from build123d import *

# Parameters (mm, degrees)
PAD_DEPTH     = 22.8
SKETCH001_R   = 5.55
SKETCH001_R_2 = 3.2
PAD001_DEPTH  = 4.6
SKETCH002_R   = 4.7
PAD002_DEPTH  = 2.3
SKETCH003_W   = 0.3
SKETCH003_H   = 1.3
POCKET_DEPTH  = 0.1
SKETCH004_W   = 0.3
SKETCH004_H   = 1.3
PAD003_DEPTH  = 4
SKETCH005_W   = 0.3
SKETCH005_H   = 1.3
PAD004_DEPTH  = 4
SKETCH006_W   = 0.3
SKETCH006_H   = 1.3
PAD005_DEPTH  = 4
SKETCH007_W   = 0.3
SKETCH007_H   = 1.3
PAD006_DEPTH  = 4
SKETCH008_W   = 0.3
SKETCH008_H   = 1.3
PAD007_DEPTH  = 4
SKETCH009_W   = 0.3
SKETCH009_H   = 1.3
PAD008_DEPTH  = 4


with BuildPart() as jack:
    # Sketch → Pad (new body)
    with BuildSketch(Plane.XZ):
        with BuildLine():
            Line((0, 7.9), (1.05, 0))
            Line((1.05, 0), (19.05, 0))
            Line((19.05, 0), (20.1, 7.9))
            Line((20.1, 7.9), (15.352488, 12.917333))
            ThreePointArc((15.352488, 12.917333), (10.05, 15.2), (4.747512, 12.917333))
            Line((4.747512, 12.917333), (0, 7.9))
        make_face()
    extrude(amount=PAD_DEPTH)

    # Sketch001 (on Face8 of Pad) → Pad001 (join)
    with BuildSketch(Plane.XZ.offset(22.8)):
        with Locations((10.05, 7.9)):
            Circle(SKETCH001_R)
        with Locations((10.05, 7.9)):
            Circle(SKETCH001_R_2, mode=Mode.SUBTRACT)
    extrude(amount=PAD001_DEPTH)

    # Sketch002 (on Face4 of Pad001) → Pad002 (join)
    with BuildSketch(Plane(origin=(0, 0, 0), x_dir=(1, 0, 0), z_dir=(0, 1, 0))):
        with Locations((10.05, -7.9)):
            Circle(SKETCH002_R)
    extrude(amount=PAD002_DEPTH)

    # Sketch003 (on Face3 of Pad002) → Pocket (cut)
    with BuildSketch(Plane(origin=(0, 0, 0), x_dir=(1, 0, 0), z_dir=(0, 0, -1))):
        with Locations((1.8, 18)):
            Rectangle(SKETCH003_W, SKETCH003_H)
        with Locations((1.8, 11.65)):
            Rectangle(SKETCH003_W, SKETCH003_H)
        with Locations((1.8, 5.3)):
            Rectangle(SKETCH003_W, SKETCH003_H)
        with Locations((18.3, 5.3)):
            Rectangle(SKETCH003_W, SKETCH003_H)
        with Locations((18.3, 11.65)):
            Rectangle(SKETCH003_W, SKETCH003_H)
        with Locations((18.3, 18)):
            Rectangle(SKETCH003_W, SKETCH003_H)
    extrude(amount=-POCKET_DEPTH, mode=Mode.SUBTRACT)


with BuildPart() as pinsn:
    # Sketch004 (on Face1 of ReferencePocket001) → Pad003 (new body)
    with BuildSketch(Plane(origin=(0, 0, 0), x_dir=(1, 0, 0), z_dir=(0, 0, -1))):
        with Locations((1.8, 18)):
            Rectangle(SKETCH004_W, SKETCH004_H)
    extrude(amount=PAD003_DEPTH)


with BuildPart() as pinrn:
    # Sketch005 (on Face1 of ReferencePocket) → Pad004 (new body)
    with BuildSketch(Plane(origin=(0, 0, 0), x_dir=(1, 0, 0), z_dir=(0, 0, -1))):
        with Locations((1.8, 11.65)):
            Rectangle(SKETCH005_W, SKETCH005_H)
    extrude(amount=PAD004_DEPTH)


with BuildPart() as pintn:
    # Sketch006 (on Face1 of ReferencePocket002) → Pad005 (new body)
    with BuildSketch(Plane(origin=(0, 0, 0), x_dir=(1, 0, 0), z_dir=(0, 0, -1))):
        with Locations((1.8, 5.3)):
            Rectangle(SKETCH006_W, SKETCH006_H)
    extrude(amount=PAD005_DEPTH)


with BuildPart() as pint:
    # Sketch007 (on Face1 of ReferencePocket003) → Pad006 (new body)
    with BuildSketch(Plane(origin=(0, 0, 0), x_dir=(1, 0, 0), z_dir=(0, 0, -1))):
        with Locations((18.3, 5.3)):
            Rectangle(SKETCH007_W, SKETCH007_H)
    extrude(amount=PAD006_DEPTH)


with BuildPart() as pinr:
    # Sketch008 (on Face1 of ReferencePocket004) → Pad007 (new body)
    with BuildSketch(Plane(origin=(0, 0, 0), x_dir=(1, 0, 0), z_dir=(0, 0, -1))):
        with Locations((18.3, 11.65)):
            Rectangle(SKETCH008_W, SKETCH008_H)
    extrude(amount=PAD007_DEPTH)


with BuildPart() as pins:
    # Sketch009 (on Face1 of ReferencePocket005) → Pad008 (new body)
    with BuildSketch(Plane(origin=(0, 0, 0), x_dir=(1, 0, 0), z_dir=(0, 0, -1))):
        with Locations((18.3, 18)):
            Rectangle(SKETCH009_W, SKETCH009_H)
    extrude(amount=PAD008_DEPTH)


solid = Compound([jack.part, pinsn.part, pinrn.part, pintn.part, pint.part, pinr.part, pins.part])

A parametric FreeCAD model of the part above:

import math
import FreeCAD as App
import Part
import Sketcher

V = App.Vector
Q = App.Units.Quantity

doc = App.newDocument("Part")
body = doc.addObject("PartDesign::Body", "Body")

sketch1 = body.newObject("Sketcher::SketchObject", "Sketch")
sketch1.AttachmentSupport = (doc.getObject("XZ_Plane"), [""])
sketch1.MapMode = "FlatFace"
sketch1.addGeometry(Part.LineSegment(V(0, 8, 0), V(1, 0, 0)), False)
sketch1.addGeometry(Part.LineSegment(V(1, 0, 0), V(19, 0, 0)), False)
sketch1.addGeometry(Part.LineSegment(V(19, 0, 0), V(20, 8, 0)), False)
sketch1.addGeometry(Part.LineSegment(V(20, 8, 0), V(15, 13, 0)), False)
sketch1.addGeometry(Part.ArcOfCircle(Part.Circle(V(10, 8, 0), V(0, 0, 1), 7), math.radians(43), math.radians(137)), False)
sketch1.addGeometry(Part.LineSegment(V(5, 13, 0), V(0, 8, 0)), False)
sketch1.addConstraint(Sketcher.Constraint("Coincident", 0, 2, 1, 1))
sketch1.addConstraint(Sketcher.Constraint("Coincident", 1, 2, 2, 1))
sketch1.addConstraint(Sketcher.Constraint("Coincident", 2, 2, 3, 1))
sketch1.addConstraint(Sketcher.Constraint("Tangent", 3, 2, 4, 1))
sketch1.addConstraint(Sketcher.Constraint("Tangent", 4, 2, 5, 1))
sketch1.addConstraint(Sketcher.Constraint("Coincident", 5, 2, 0, 1))
sketch1.addConstraint(Sketcher.Constraint("Horizontal", 1))
sketch1.addConstraint(Sketcher.Constraint("PointOnObject", 0, 2, -1))
sketch1.addConstraint(Sketcher.Constraint("PointOnObject", 5, 2, -2))
sketch1.addConstraint(Sketcher.Constraint("Horizontal", 3, 2, 4, 2))
sketch1.addConstraint(Sketcher.Constraint("Horizontal", 2, 2, 5, 2))
sketch1.addConstraint(Sketcher.Constraint("Equal", 0, 2))
sketch1.addConstraint(Sketcher.Constraint("DistanceX", 1, 1, 1, 2, Q("18 mm")))
sketch1.addConstraint(Sketcher.Constraint("DistanceX", -1, 1, 2, 2, Q("20.1 mm")))
sketch1.addConstraint(Sketcher.Constraint("DistanceY", -1, 1, 2, 2, Q("7.9 mm")))
sketch1.addConstraint(Sketcher.Constraint("Radius", 4, Q("7.300002 mm")))
sketch1.addConstraint(Sketcher.Constraint("DistanceY", -1, 1, 4, 3, Q("7.899998 mm")))
pad1 = body.newObject("PartDesign::Pad", "Pad")
pad1.Profile = sketch1
pad1.Length = 22.8

sketch2 = body.newObject("Sketcher::SketchObject", "Sketch001")
sketch2.AttachmentSupport = (doc.getObject("XZ_Plane"), [""])
sketch2.MapMode = "FlatFace"
sketch2.AttachmentOffset = App.Placement(V(0, 0, 22.8), App.Rotation())
sketch2.addGeometry(Part.Circle(V(10.1, 7.9, 0), V(0, 0, 1), 5.5), False)
sketch2.addGeometry(Part.Circle(V(10.1, 7.9, 0), V(0, 0, 1), 3.2), False)
sketch2.addConstraint(Sketcher.Constraint("Coincident", 1, 3, 0, 3))
sketch2.addConstraint(Sketcher.Constraint("Diameter", 0, Q("11.1 mm")))
sketch2.addConstraint(Sketcher.Constraint("Diameter", 1, Q("6.4 mm")))
sketch2.addConstraint(Sketcher.Constraint("DistanceY", -1, 1, 0, 3, Q("7.9 mm")))
sketch2.addConstraint(Sketcher.Constraint("DistanceX", -1, 1, 0, 3, Q("10.05 mm")))
pad2 = body.newObject("PartDesign::Pad", "Pad001")
pad2.Profile = sketch2
pad2.Length = 4.6

sketch3 = body.newObject("Sketcher::SketchObject", "Sketch002")
sketch3.AttachmentSupport = (doc.getObject("XZ_Plane"), [""])
sketch3.MapMode = "FlatFace"
sketch3.addGeometry(Part.Circle(V(10.1, 7.9, 0), V(0, 0, 1), 4.7), False)
sketch3.addConstraint(Sketcher.Constraint("Diameter", 0, Q("9.4 mm")))
sketch3.addConstraint(Sketcher.Constraint("DistanceY", -1, 1, 0, 3, Q("7.9 mm")))
sketch3.addConstraint(Sketcher.Constraint("DistanceX", -1, 1, 0, 3, Q("10.05 mm")))
pad3 = body.newObject("PartDesign::Pad", "Pad002")
pad3.Profile = sketch3
pad3.Length = 2.3
pad3.Reversed = True

sketch4 = body.newObject("Sketcher::SketchObject", "Sketch003")
sketch4.AttachmentSupport = (doc.getObject("XY_Plane"), [""])
sketch4.MapMode = "FlatFace"
sketch4.addGeometry(Part.LineSegment(V(1.65, -18.65, 0), V(1.65, -17.35, 0)), False)
sketch4.addGeometry(Part.LineSegment(V(1.65, -17.35, 0), V(1.95, -17.35, 0)), False)
sketch4.addGeometry(Part.LineSegment(V(1.95, -17.35, 0), V(1.95, -18.65, 0)), False)
sketch4.addGeometry(Part.LineSegment(V(1.95, -18.65, 0), V(1.65, -18.65, 0)), False)
sketch4.addGeometry(Part.LineSegment(V(1.65, -12.3, 0), V(1.65, -11, 0)), False)
sketch4.addGeometry(Part.LineSegment(V(1.65, -11, 0), V(1.95, -11, 0)), False)
sketch4.addGeometry(Part.LineSegment(V(1.95, -11, 0), V(1.95, -12.3, 0)), False)
sketch4.addGeometry(Part.LineSegment(V(1.95, -12.3, 0), V(1.65, -12.3, 0)), False)
sketch4.addGeometry(Part.LineSegment(V(1.65, -5.95, 0), V(1.65, -4.65, 0)), False)
sketch4.addGeometry(Part.LineSegment(V(1.65, -4.65, 0), V(1.95, -4.65, 0)), False)
sketch4.addGeometry(Part.LineSegment(V(1.95, -4.65, 0), V(1.95, -5.95, 0)), False)
sketch4.addGeometry(Part.LineSegment(V(1.95, -5.95, 0), V(1.65, -5.95, 0)), False)
sketch4.addGeometry(Part.LineSegment(V(18.15, -5.95, 0), V(18.15, -4.65, 0)), False)
sketch4.addGeometry(Part.LineSegment(V(18.15, -4.65, 0), V(18.45, -4.65, 0)), False)
sketch4.addGeometry(Part.LineSegment(V(18.45, -4.65, 0), V(18.45, -5.95, 0)), False)
sketch4.addGeometry(Part.LineSegment(V(18.45, -5.95, 0), V(18.15, -5.95, 0)), False)
sketch4.addGeometry(Part.LineSegment(V(18.15, -12.3, 0), V(18.15, -11, 0)), False)
sketch4.addGeometry(Part.LineSegment(V(18.15, -11, 0), V(18.45, -11, 0)), False)
sketch4.addGeometry(Part.LineSegment(V(18.45, -11, 0), V(18.45, -12.3, 0)), False)
sketch4.addGeometry(Part.LineSegment(V(18.45, -12.3, 0), V(18.15, -12.3, 0)), False)
sketch4.addGeometry(Part.LineSegment(V(18.15, -18.65, 0), V(18.15, -17.35, 0)), False)
sketch4.addGeometry(Part.LineSegment(V(18.15, -17.35, 0), V(18.45, -17.35, 0)), False)
sketch4.addGeometry(Part.LineSegment(V(18.45, -17.35, 0), V(18.45, -18.65, 0)), False)
sketch4.addGeometry(Part.LineSegment(V(18.45, -18.65, 0), V(18.15, -18.65, 0)), False)
sketch4.addConstraint(Sketcher.Constraint("Coincident", 0, 2, 1, 1))
sketch4.addConstraint(Sketcher.Constraint("Coincident", 1, 2, 2, 1))
sketch4.addConstraint(Sketcher.Constraint("Coincident", 2, 2, 3, 1))
sketch4.addConstraint(Sketcher.Constraint("Coincident", 3, 2, 0, 1))
sketch4.addConstraint(Sketcher.Constraint("Coincident", 4, 2, 5, 1))
sketch4.addConstraint(Sketcher.Constraint("Coincident", 5, 2, 6, 1))
sketch4.addConstraint(Sketcher.Constraint("Coincident", 6, 2, 7, 1))
sketch4.addConstraint(Sketcher.Constraint("Coincident", 7, 2, 4, 1))
sketch4.addConstraint(Sketcher.Constraint("Coincident", 8, 2, 9, 1))
sketch4.addConstraint(Sketcher.Constraint("Coincident", 9, 2, 10, 1))
sketch4.addConstraint(Sketcher.Constraint("Coincident", 10, 2, 11, 1))
sketch4.addConstraint(Sketcher.Constraint("Coincident", 11, 2, 8, 1))
sketch4.addConstraint(Sketcher.Constraint("Coincident", 12, 2, 13, 1))
sketch4.addConstraint(Sketcher.Constraint("Coincident", 13, 2, 14, 1))
sketch4.addConstraint(Sketcher.Constraint("Coincident", 14, 2, 15, 1))
sketch4.addConstraint(Sketcher.Constraint("Coincident", 15, 2, 12, 1))
sketch4.addConstraint(Sketcher.Constraint("Coincident", 16, 2, 17, 1))
sketch4.addConstraint(Sketcher.Constraint("Coincident", 17, 2, 18, 1))
sketch4.addConstraint(Sketcher.Constraint("Coincident", 18, 2, 19, 1))
sketch4.addConstraint(Sketcher.Constraint("Coincident", 19, 2, 16, 1))
sketch4.addConstraint(Sketcher.Constraint("Coincident", 20, 2, 21, 1))
sketch4.addConstraint(Sketcher.Constraint("Coincident", 21, 2, 22, 1))
sketch4.addConstraint(Sketcher.Constraint("Coincident", 22, 2, 23, 1))
sketch4.addConstraint(Sketcher.Constraint("Coincident", 23, 2, 20, 1))
sketch4.addConstraint(Sketcher.Constraint("Vertical", 0))
sketch4.addConstraint(Sketcher.Constraint("Horizontal", 1))
sketch4.addConstraint(Sketcher.Constraint("Vertical", 2))
sketch4.addConstraint(Sketcher.Constraint("Horizontal", 3))
sketch4.addConstraint(Sketcher.Constraint("Vertical", 4))
sketch4.addConstraint(Sketcher.Constraint("Horizontal", 5))
sketch4.addConstraint(Sketcher.Constraint("Vertical", 6))
sketch4.addConstraint(Sketcher.Constraint("Horizontal", 7))
sketch4.addConstraint(Sketcher.Constraint("Vertical", 8))
sketch4.addConstraint(Sketcher.Constraint("Horizontal", 9))
sketch4.addConstraint(Sketcher.Constraint("Vertical", 10))
sketch4.addConstraint(Sketcher.Constraint("Horizontal", 11))
sketch4.addConstraint(Sketcher.Constraint("Vertical", 12))
sketch4.addConstraint(Sketcher.Constraint("Horizontal", 13))
sketch4.addConstraint(Sketcher.Constraint("Vertical", 14))
sketch4.addConstraint(Sketcher.Constraint("Horizontal", 15))
sketch4.addConstraint(Sketcher.Constraint("Vertical", 16))
sketch4.addConstraint(Sketcher.Constraint("Horizontal", 17))
sketch4.addConstraint(Sketcher.Constraint("Vertical", 18))
sketch4.addConstraint(Sketcher.Constraint("Horizontal", 19))
sketch4.addConstraint(Sketcher.Constraint("Vertical", 20))
sketch4.addConstraint(Sketcher.Constraint("Horizontal", 21))
sketch4.addConstraint(Sketcher.Constraint("Vertical", 22))
sketch4.addConstraint(Sketcher.Constraint("Horizontal", 23))
sketch4.addConstraint(Sketcher.Constraint("Horizontal", 9, 2, 12, 2))
sketch4.addConstraint(Sketcher.Constraint("Horizontal", 11, 2, 14, 2))
sketch4.addConstraint(Sketcher.Constraint("Horizontal", 5, 2, 16, 2))
sketch4.addConstraint(Sketcher.Constraint("Horizontal", 7, 2, 18, 2))
sketch4.addConstraint(Sketcher.Constraint("Horizontal", 1, 2, 20, 2))
sketch4.addConstraint(Sketcher.Constraint("Horizontal", 3, 2, 22, 2))
sketch4.addConstraint(Sketcher.Constraint("Vertical", 3, 2, 4, 2))
sketch4.addConstraint(Sketcher.Constraint("Vertical", 2, 2, 5, 2))
sketch4.addConstraint(Sketcher.Constraint("Vertical", 7, 2, 8, 2))
sketch4.addConstraint(Sketcher.Constraint("Vertical", 6, 2, 9, 2))
sketch4.addConstraint(Sketcher.Constraint("Vertical", 15, 2, 16, 2))
sketch4.addConstraint(Sketcher.Constraint("Vertical", 14, 2, 17, 2))
sketch4.addConstraint(Sketcher.Constraint("Vertical", 19, 2, 20, 2))
sketch4.addConstraint(Sketcher.Constraint("Vertical", 18, 2, 21, 2))
sketch4.addConstraint(Sketcher.Constraint("Equal", 11, 13))
sketch4.addConstraint(Sketcher.Constraint("Equal", 2, 4))
sketch4.addConstraint(Sketcher.Constraint("Equal", 6, 8))
sketch4.addConstraint(Sketcher.Constraint("DistanceX", 1, 1, 1, 2, Q("0.3 mm")))
sketch4.addConstraint(Sketcher.Constraint("DistanceY", 0, 1, 0, 2, Q("1.3 mm")))
sketch4.addConstraint(Sketcher.Constraint("DistanceY", 4, 2, -1, 1, Q("11 mm")))
sketch4.addConstraint(Sketcher.Constraint("DistanceY", 0, 2, 8, 2, Q("12.7 mm")))
sketch4.addConstraint(Sketcher.Constraint("DistanceX", 9, 2, 12, 2, Q("16.2 mm")))
sketch4.addConstraint(Sketcher.Constraint("DistanceX", -1, 1, 0, 2, Q("1.65 mm")))
sketch4.addConstraint(Sketcher.Constraint("DistanceY", 0, 2, -1, 1, Q("17.35 mm")))
pocket1 = body.newObject("PartDesign::Pocket", "Pocket")
pocket1.Profile = sketch4
pocket1.Length = 0.1
pocket1.Reversed = True
body2 = doc.addObject("PartDesign::Body", "Body001")

sketch5 = body2.newObject("Sketcher::SketchObject", "Sketch004")
sketch5.AttachmentSupport = (doc.getObject("XY_Plane001"), [""])
sketch5.MapMode = "FlatFace"
sketch5.addGeometry(Part.LineSegment(V(1.65, -18.65, 0), V(1.65, -17.35, 0)), False)
sketch5.addGeometry(Part.LineSegment(V(1.65, -17.35, 0), V(1.95, -17.35, 0)), False)
sketch5.addGeometry(Part.LineSegment(V(1.95, -17.35, 0), V(1.95, -18.65, 0)), False)
sketch5.addGeometry(Part.LineSegment(V(1.95, -18.65, 0), V(1.65, -18.65, 0)), False)
sketch5.addConstraint(Sketcher.Constraint("Coincident", 0, 2, 1, 1))
sketch5.addConstraint(Sketcher.Constraint("Coincident", 1, 2, 2, 1))
sketch5.addConstraint(Sketcher.Constraint("Coincident", 2, 2, 3, 1))
sketch5.addConstraint(Sketcher.Constraint("Coincident", 3, 2, 0, 1))
sketch5.addConstraint(Sketcher.Constraint("Vertical", 0))
sketch5.addConstraint(Sketcher.Constraint("Horizontal", 1))
sketch5.addConstraint(Sketcher.Constraint("Vertical", 2))
sketch5.addConstraint(Sketcher.Constraint("Horizontal", 3))
sketch5.addConstraint(Sketcher.Constraint("DistanceX", 1, 1, 1, 2, Q("0.3 mm")))
sketch5.addConstraint(Sketcher.Constraint("DistanceY", 0, 1, 0, 2, Q("1.3 mm")))
sketch5.addConstraint(Sketcher.Constraint("DistanceX", -1, 1, 0, 2, Q("1.65 mm")))
sketch5.addConstraint(Sketcher.Constraint("DistanceY", 0, 2, -1, 1, Q("17.35 mm")))
pad4 = body2.newObject("PartDesign::Pad", "Pad003")
pad4.Profile = sketch5
pad4.Length = 4
pad4.Reversed = True
body3 = doc.addObject("PartDesign::Body", "Body002")

sketch6 = body3.newObject("Sketcher::SketchObject", "Sketch005")
sketch6.AttachmentSupport = (doc.getObject("XY_Plane002"), [""])
sketch6.MapMode = "FlatFace"
sketch6.addGeometry(Part.LineSegment(V(1.65, -12.3, 0), V(1.65, -11, 0)), False)
sketch6.addGeometry(Part.LineSegment(V(1.65, -11, 0), V(1.95, -11, 0)), False)
sketch6.addGeometry(Part.LineSegment(V(1.95, -11, 0), V(1.95, -12.3, 0)), False)
sketch6.addGeometry(Part.LineSegment(V(1.95, -12.3, 0), V(1.65, -12.3, 0)), False)
sketch6.addConstraint(Sketcher.Constraint("Coincident", 0, 2, 1, 1))
sketch6.addConstraint(Sketcher.Constraint("Coincident", 1, 2, 2, 1))
sketch6.addConstraint(Sketcher.Constraint("Coincident", 2, 2, 3, 1))
sketch6.addConstraint(Sketcher.Constraint("Coincident", 3, 2, 0, 1))
sketch6.addConstraint(Sketcher.Constraint("Vertical", 0))
sketch6.addConstraint(Sketcher.Constraint("Horizontal", 1))
sketch6.addConstraint(Sketcher.Constraint("Vertical", 2))
sketch6.addConstraint(Sketcher.Constraint("Horizontal", 3))
sketch6.addConstraint(Sketcher.Constraint("DistanceX", 1, 1, 1, 2, Q("0.3 mm")))
sketch6.addConstraint(Sketcher.Constraint("DistanceY", 0, 1, 0, 2, Q("1.3 mm")))
sketch6.addConstraint(Sketcher.Constraint("DistanceY", 0, 2, -1, 1, Q("11 mm")))
sketch6.addConstraint(Sketcher.Constraint("DistanceX", -1, 1, 0, 2, Q("1.65 mm")))
pad5 = body3.newObject("PartDesign::Pad", "Pad004")
pad5.Profile = sketch6
pad5.Length = 4
pad5.Reversed = True
body4 = doc.addObject("PartDesign::Body", "Body003")

sketch7 = body4.newObject("Sketcher::SketchObject", "Sketch006")
sketch7.AttachmentSupport = (doc.getObject("XY_Plane003"), [""])
sketch7.MapMode = "FlatFace"
sketch7.addGeometry(Part.LineSegment(V(1.65, -5.95, 0), V(1.65, -4.65, 0)), False)
sketch7.addGeometry(Part.LineSegment(V(1.65, -4.65, 0), V(1.95, -4.65, 0)), False)
sketch7.addGeometry(Part.LineSegment(V(1.95, -4.65, 0), V(1.95, -5.95, 0)), False)
sketch7.addGeometry(Part.LineSegment(V(1.95, -5.95, 0), V(1.65, -5.95, 0)), False)
sketch7.addConstraint(Sketcher.Constraint("Coincident", 0, 2, 1, 1))
sketch7.addConstraint(Sketcher.Constraint("Coincident", 1, 2, 2, 1))
sketch7.addConstraint(Sketcher.Constraint("Coincident", 2, 2, 3, 1))
sketch7.addConstraint(Sketcher.Constraint("Coincident", 3, 2, 0, 1))
sketch7.addConstraint(Sketcher.Constraint("Vertical", 0))
sketch7.addConstraint(Sketcher.Constraint("Horizontal", 1))
sketch7.addConstraint(Sketcher.Constraint("Vertical", 2))
sketch7.addConstraint(Sketcher.Constraint("Horizontal", 3))
sketch7.addConstraint(Sketcher.Constraint("DistanceX", 1, 1, 1, 2, Q("0.3 mm")))
sketch7.addConstraint(Sketcher.Constraint("DistanceY", 0, 1, 0, 2, Q("1.3 mm")))
sketch7.addConstraint(Sketcher.Constraint("DistanceX", -1, 1, 0, 2, Q("1.65 mm")))
sketch7.addConstraint(Sketcher.Constraint("DistanceY", 0, 2, -1, 1, Q("4.65 mm")))
pad6 = body4.newObject("PartDesign::Pad", "Pad005")
pad6.Profile = sketch7
pad6.Length = 4
pad6.Reversed = True
body5 = doc.addObject("PartDesign::Body", "Body004")

sketch8 = body5.newObject("Sketcher::SketchObject", "Sketch007")
sketch8.AttachmentSupport = (doc.getObject("XY_Plane004"), [""])
sketch8.MapMode = "FlatFace"
sketch8.addGeometry(Part.LineSegment(V(18.15, -5.95, 0), V(18.15, -4.65, 0)), False)
sketch8.addGeometry(Part.LineSegment(V(18.15, -4.65, 0), V(18.45, -4.65, 0)), False)
sketch8.addGeometry(Part.LineSegment(V(18.45, -4.65, 0), V(18.45, -5.95, 0)), False)
sketch8.addGeometry(Part.LineSegment(V(18.45, -5.95, 0), V(18.15, -5.95, 0)), False)
sketch8.addConstraint(Sketcher.Constraint("Coincident", 0, 2, 1, 1))
sketch8.addConstraint(Sketcher.Constraint("Coincident", 1, 2, 2, 1))
sketch8.addConstraint(Sketcher.Constraint("Coincident", 2, 2, 3, 1))
sketch8.addConstraint(Sketcher.Constraint("Coincident", 3, 2, 0, 1))
sketch8.addConstraint(Sketcher.Constraint("Vertical", 0))
sketch8.addConstraint(Sketcher.Constraint("Horizontal", 1))
sketch8.addConstraint(Sketcher.Constraint("Vertical", 2))
sketch8.addConstraint(Sketcher.Constraint("Horizontal", 3))
sketch8.addConstraint(Sketcher.Constraint("DistanceX", 1, 1, 1, 2, Q("0.3 mm")))
sketch8.addConstraint(Sketcher.Constraint("DistanceY", 0, 1, 0, 2, Q("1.3 mm")))
sketch8.addConstraint(Sketcher.Constraint("DistanceX", -1, 1, 0, 2, Q("18.15 mm")))
sketch8.addConstraint(Sketcher.Constraint("DistanceY", 0, 2, -1, 1, Q("4.65 mm")))
pad7 = body5.newObject("PartDesign::Pad", "Pad006")
pad7.Profile = sketch8
pad7.Length = 4
pad7.Reversed = True
body6 = doc.addObject("PartDesign::Body", "Body005")

sketch9 = body6.newObject("Sketcher::SketchObject", "Sketch008")
sketch9.AttachmentSupport = (doc.getObject("XY_Plane005"), [""])
sketch9.MapMode = "FlatFace"
sketch9.addGeometry(Part.LineSegment(V(18.15, -12.3, 0), V(18.15, -11, 0)), False)
sketch9.addGeometry(Part.LineSegment(V(18.15, -11, 0), V(18.45, -11, 0)), False)
sketch9.addGeometry(Part.LineSegment(V(18.45, -11, 0), V(18.45, -12.3, 0)), False)
sketch9.addGeometry(Part.LineSegment(V(18.45, -12.3, 0), V(18.15, -12.3, 0)), False)
sketch9.addConstraint(Sketcher.Constraint("Coincident", 0, 2, 1, 1))
sketch9.addConstraint(Sketcher.Constraint("Coincident", 1, 2, 2, 1))
sketch9.addConstraint(Sketcher.Constraint("Coincident", 2, 2, 3, 1))
sketch9.addConstraint(Sketcher.Constraint("Coincident", 3, 2, 0, 1))
sketch9.addConstraint(Sketcher.Constraint("Vertical", 0))
sketch9.addConstraint(Sketcher.Constraint("Horizontal", 1))
sketch9.addConstraint(Sketcher.Constraint("Vertical", 2))
sketch9.addConstraint(Sketcher.Constraint("Horizontal", 3))
sketch9.addConstraint(Sketcher.Constraint("DistanceX", 1, 1, 1, 2, Q("0.3 mm")))
sketch9.addConstraint(Sketcher.Constraint("DistanceY", 0, 1, 0, 2, Q("1.3 mm")))
sketch9.addConstraint(Sketcher.Constraint("DistanceY", 0, 2, -1, 1, Q("11 mm")))
sketch9.addConstraint(Sketcher.Constraint("DistanceX", -1, 1, 0, 2, Q("18.15 mm")))
pad8 = body6.newObject("PartDesign::Pad", "Pad007")
pad8.Profile = sketch9
pad8.Length = 4
pad8.Reversed = True
body7 = doc.addObject("PartDesign::Body", "Body006")

sketch10 = body7.newObject("Sketcher::SketchObject", "Sketch009")
sketch10.AttachmentSupport = (doc.getObject("XY_Plane006"), [""])
sketch10.MapMode = "FlatFace"
sketch10.addGeometry(Part.LineSegment(V(18.15, -18.65, 0), V(18.15, -17.35, 0)), False)
sketch10.addGeometry(Part.LineSegment(V(18.15, -17.35, 0), V(18.45, -17.35, 0)), False)
sketch10.addGeometry(Part.LineSegment(V(18.45, -17.35, 0), V(18.45, -18.65, 0)), False)
sketch10.addGeometry(Part.LineSegment(V(18.45, -18.65, 0), V(18.15, -18.65, 0)), False)
sketch10.addConstraint(Sketcher.Constraint("Coincident", 0, 2, 1, 1))
sketch10.addConstraint(Sketcher.Constraint("Coincident", 1, 2, 2, 1))
sketch10.addConstraint(Sketcher.Constraint("Coincident", 2, 2, 3, 1))
sketch10.addConstraint(Sketcher.Constraint("Coincident", 3, 2, 0, 1))
sketch10.addConstraint(Sketcher.Constraint("Vertical", 0))
sketch10.addConstraint(Sketcher.Constraint("Horizontal", 1))
sketch10.addConstraint(Sketcher.Constraint("Vertical", 2))
sketch10.addConstraint(Sketcher.Constraint("Horizontal", 3))
sketch10.addConstraint(Sketcher.Constraint("DistanceX", 1, 1, 1, 2, Q("0.3 mm")))
sketch10.addConstraint(Sketcher.Constraint("DistanceY", 0, 1, 0, 2, Q("1.3 mm")))
sketch10.addConstraint(Sketcher.Constraint("DistanceX", -1, 1, 0, 2, Q("18.15 mm")))
sketch10.addConstraint(Sketcher.Constraint("DistanceY", 0, 2, -1, 1, Q("17.35 mm")))
pad9 = body7.newObject("PartDesign::Pad", "Pad008")
pad9.Profile = sketch10
pad9.Length = 4
pad9.Reversed = True

doc.recompute()
